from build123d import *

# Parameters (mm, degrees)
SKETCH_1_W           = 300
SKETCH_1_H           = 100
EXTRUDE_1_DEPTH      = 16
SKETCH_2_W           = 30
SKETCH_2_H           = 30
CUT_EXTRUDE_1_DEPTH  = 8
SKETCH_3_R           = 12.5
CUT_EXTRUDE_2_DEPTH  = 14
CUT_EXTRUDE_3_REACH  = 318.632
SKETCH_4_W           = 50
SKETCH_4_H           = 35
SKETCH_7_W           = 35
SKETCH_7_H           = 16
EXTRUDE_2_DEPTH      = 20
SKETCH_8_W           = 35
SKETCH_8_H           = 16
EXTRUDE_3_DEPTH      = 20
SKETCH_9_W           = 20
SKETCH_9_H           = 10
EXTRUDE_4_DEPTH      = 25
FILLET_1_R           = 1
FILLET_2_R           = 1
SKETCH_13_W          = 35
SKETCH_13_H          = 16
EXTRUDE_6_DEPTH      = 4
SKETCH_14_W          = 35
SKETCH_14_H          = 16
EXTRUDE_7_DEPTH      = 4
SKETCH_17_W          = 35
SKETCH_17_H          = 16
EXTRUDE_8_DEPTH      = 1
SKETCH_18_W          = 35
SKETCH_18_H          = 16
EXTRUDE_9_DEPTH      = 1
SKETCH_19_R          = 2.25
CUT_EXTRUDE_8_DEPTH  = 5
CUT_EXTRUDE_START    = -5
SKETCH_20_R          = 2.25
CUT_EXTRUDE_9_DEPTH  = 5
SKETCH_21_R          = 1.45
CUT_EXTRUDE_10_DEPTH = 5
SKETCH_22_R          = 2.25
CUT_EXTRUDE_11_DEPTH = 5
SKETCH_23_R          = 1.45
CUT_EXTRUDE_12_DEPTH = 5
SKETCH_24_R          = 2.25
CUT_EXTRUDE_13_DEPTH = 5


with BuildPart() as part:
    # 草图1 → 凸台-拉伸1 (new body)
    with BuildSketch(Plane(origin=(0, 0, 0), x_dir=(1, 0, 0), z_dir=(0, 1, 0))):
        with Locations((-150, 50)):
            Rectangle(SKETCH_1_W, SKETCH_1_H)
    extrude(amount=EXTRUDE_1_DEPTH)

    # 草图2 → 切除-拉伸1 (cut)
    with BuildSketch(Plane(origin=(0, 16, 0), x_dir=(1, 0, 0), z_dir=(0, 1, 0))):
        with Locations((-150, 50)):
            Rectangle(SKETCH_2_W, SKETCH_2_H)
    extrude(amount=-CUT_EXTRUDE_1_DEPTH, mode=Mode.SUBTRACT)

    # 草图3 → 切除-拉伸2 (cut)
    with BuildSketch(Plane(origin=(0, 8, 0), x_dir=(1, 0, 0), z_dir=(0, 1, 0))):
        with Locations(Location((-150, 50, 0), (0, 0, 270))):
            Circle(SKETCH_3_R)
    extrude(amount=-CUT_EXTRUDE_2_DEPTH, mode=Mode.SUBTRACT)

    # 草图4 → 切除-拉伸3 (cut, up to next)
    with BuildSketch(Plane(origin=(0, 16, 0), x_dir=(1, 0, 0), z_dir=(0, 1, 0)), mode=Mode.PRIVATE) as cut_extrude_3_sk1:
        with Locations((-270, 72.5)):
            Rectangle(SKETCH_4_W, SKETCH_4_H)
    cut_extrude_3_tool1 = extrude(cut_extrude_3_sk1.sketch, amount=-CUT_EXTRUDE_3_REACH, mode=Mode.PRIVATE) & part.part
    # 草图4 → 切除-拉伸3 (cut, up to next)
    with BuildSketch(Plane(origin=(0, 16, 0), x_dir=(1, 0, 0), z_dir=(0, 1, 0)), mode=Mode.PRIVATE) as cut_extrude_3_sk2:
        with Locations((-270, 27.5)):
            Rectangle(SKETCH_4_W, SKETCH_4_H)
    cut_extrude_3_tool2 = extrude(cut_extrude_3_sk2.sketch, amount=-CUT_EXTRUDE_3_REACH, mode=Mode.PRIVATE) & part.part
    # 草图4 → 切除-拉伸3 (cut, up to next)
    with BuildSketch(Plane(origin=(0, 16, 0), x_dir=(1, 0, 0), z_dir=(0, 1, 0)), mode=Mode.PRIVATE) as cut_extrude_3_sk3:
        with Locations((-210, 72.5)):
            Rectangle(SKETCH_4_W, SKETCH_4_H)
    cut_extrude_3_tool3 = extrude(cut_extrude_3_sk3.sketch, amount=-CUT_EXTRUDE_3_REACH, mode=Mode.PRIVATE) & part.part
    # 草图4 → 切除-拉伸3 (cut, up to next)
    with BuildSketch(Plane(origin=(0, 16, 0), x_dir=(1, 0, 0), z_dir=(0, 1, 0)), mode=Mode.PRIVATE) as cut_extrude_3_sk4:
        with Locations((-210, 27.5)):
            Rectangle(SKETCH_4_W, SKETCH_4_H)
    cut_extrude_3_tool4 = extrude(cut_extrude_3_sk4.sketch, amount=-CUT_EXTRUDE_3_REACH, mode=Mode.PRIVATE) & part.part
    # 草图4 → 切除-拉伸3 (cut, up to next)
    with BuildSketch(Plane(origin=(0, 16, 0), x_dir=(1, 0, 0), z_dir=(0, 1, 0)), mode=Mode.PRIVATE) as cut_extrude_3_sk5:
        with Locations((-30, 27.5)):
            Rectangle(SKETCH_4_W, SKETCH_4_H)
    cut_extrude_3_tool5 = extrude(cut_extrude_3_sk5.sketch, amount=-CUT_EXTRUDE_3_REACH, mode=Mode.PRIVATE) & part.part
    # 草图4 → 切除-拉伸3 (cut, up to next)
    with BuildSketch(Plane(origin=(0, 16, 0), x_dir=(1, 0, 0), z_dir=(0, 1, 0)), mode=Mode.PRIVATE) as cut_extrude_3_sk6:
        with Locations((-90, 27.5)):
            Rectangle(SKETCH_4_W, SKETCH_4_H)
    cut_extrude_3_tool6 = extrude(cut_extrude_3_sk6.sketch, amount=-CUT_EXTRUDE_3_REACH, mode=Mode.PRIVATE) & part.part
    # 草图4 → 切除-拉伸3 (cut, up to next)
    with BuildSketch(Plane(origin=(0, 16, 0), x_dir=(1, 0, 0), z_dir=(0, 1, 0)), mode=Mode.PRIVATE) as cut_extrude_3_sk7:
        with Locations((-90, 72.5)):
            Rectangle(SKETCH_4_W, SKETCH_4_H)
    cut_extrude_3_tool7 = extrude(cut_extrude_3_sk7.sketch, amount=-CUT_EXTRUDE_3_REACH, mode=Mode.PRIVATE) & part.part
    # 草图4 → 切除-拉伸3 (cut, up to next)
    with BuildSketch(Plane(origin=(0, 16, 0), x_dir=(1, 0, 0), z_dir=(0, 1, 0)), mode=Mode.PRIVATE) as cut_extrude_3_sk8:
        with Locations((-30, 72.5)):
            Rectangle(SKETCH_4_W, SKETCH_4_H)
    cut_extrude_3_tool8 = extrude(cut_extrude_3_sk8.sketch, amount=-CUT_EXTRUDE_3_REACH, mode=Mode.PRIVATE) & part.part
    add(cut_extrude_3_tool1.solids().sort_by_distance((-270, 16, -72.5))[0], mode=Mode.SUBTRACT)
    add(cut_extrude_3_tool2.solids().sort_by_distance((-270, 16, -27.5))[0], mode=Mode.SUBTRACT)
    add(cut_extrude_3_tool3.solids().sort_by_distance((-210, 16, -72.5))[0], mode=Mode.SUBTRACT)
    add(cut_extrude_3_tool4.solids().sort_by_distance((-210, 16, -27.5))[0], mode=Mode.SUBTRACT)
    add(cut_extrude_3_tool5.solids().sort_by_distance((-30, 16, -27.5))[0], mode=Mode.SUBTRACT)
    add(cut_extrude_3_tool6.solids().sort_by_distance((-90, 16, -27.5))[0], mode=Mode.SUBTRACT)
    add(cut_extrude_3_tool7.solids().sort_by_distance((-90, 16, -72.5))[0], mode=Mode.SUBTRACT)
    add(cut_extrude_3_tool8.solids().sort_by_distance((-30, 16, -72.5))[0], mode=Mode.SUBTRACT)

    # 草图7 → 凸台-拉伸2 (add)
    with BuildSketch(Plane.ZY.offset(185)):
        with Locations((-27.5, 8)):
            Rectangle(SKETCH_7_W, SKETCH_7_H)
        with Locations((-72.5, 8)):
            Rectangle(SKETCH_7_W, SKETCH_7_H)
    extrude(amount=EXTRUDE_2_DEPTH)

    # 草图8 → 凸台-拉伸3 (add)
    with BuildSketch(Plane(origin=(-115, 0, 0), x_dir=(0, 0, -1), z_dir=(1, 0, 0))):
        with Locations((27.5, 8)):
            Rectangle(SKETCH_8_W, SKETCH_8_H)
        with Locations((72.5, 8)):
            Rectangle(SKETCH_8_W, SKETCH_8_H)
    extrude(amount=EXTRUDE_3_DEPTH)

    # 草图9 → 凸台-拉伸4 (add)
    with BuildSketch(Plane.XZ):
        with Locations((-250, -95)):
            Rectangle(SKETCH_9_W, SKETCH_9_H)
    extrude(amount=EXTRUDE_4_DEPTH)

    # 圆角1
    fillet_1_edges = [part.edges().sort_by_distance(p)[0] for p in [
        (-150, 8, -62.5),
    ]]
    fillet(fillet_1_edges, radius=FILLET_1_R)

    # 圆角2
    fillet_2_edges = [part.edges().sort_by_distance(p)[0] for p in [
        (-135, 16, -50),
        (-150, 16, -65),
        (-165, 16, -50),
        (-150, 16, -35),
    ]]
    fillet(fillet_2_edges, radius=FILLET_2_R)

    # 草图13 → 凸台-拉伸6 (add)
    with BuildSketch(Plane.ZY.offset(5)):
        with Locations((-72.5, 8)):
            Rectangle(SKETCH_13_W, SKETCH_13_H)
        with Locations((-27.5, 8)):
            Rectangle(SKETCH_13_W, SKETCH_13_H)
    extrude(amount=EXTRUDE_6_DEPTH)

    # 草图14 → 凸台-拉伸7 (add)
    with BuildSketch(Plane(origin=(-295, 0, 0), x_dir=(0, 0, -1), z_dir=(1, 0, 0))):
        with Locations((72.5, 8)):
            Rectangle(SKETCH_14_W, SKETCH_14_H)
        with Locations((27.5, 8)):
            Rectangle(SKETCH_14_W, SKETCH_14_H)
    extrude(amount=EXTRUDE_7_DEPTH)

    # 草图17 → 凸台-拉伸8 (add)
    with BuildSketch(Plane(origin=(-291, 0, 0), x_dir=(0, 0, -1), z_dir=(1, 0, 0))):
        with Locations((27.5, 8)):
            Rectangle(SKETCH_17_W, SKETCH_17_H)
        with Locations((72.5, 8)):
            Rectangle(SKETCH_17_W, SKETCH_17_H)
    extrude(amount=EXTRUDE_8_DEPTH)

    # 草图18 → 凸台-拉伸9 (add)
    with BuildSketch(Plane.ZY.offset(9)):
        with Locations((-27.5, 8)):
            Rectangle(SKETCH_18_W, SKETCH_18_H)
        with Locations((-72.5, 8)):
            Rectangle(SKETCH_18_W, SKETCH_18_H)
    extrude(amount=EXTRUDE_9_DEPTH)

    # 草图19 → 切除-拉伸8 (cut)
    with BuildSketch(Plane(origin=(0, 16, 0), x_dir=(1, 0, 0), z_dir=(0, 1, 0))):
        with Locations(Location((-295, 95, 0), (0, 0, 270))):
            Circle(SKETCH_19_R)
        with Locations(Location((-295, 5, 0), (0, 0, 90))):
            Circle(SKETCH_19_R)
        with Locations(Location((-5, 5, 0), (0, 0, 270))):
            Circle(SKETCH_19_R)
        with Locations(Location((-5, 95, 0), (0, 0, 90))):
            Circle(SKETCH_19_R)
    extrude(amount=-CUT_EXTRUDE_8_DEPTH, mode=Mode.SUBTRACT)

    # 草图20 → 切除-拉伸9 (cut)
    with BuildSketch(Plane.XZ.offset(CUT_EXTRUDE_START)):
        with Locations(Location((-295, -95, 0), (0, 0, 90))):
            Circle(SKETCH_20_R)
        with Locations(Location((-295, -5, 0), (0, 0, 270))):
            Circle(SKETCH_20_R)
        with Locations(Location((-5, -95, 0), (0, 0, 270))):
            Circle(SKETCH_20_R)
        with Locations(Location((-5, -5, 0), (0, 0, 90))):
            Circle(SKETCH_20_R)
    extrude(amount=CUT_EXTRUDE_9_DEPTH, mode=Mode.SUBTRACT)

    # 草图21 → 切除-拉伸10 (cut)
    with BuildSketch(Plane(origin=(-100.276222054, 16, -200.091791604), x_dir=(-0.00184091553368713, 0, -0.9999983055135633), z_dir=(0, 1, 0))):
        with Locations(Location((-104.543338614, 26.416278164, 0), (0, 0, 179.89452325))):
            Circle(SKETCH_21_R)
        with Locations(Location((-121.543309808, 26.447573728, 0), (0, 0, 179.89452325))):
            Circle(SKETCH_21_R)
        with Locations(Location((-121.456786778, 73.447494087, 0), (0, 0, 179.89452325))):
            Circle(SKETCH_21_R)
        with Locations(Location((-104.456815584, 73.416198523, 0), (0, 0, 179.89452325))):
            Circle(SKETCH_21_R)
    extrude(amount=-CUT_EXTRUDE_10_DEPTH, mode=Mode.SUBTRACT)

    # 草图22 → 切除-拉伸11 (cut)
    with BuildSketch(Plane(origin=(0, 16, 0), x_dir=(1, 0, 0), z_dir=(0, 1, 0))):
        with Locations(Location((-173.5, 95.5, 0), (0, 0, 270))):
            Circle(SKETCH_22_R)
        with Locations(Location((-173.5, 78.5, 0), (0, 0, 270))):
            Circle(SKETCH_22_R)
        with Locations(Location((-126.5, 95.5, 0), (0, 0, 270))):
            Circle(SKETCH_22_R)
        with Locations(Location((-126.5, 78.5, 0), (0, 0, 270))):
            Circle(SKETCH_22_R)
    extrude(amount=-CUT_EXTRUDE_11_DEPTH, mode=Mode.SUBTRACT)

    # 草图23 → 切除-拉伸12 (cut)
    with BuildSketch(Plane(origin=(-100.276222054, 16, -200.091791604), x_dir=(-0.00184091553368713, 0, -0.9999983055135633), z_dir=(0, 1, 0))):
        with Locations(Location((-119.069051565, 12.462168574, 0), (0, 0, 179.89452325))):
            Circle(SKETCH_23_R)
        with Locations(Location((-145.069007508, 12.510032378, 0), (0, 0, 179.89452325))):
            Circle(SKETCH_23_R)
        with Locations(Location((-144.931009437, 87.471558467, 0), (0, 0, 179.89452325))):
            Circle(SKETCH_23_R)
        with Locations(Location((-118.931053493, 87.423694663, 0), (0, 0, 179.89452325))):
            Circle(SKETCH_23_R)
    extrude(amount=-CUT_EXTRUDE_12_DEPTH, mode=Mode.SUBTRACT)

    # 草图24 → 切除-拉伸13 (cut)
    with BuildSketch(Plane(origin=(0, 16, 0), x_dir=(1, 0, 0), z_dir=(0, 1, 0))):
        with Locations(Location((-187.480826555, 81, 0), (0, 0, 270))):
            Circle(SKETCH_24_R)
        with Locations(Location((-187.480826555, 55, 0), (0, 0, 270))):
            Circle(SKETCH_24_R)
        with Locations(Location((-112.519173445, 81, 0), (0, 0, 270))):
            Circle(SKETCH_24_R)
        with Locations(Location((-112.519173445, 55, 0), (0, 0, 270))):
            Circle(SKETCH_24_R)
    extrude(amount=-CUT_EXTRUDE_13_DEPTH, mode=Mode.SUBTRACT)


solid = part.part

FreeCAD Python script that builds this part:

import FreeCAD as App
import Part
import Sketcher

V = App.Vector


def edges_at(feature, points):
    """Names of the edges that pass closest to the given points."""
    edges = feature.Shape.Edges
    near = lambda p: min(range(len(edges)), key=lambda i: edges[i].distToShape(Part.Vertex(*p))[0])
    return sorted({f"Edge{near(p) + 1}" for p in points})


def add_polygon(sketch, points):
    """Adds a closed chain of lines whose ends are joined by coincident constraints."""
    first, n = sketch.GeometryCount, len(points)
    for a, b in zip(points, points[1:] + points[:1]):
        sketch.addGeometry(Part.LineSegment(App.Vector(*a, 0), App.Vector(*b, 0)), False)
    for i in range(n):
        sketch.addConstraint(Sketcher.Constraint("Coincident", first + i, 2, first + (i + 1) % n, 1))

doc = App.newDocument("Part")
params = doc.addObject("Spreadsheet::Sheet", "Params")
for row, (alias, value) in enumerate([
    ("sketch1_width", "300 mm"),
    ("sketch1_height", "100 mm"),
    ("pad1_length", "16 mm"),
    ("sketch2_width", "30 mm"),
    ("pocket1_length", "8 mm"),
    ("sketch3_diameter", "25 mm"),
    ("pocket2_length", "14 mm"),
    ("sketch4_width", "50 mm"),
    ("sketch4_height", "35 mm"),
    ("sketch5_width", "50 mm"),
    ("sketch5_height", "35 mm"),
    ("sketch6_width", "50 mm"),
    ("sketch6_height", "35 mm"),
    ("sketch7_width", "50 mm"),
    ("sketch7_height", "35 mm"),
    ("sketch8_width", "50 mm"),
    ("sketch8_height", "35 mm"),
    ("sketch9_width", "50 mm"),
    ("sketch9_height", "35 mm"),
    ("sketch10_width", "50 mm"),
    ("sketch10_height", "35 mm"),
    ("sketch11_width", "50 mm"),
    ("sketch11_height", "35 mm"),
    ("sketch12_width", "16 mm"),
    ("sketch12_height", "35 mm"),
    ("pad2_length", "20 mm"),
    ("sketch13_width", "16 mm"),
    ("sketch13_height", "35 mm"),
    ("pad3_length", "20 mm"),
    ("sketch14_width", "20 mm"),
    ("sketch14_height", "10 mm"),
    ("pad4_length", "25 mm"),
    ("fillet_radius", "1 mm"),
    ("fillet2_radius", "1 mm"),
    ("sketch15_width", "16 mm"),
    ("sketch15_height", "35 mm"),
    ("pad5_length", "4 mm"),
    ("sketch16_width", "16 mm"),
    ("sketch16_height", "35 mm"),
    ("pad6_length", "4 mm"),
    ("sketch17_width", "16 mm"),
    ("sketch17_height", "35 mm"),
    ("pad7_length", "1 mm"),
    ("sketch18_width", "16 mm"),
    ("sketch18_height", "35 mm"),
    ("pad8_length", "1 mm"),
    ("sketch19_diameter", "4.5 mm"),
    ("pocket11_length", "5 mm"),
    ("sketch20_diameter", "4.5 mm"),
    ("pocket12_length", "5 mm"),
    ("sketch21_diameter", "2.9 mm"),
    ("pocket13_length", "5 mm"),
    ("sketch22_diameter", "4.5 mm"),
    ("pocket14_length", "5 mm"),
    ("sketch23_diameter", "2.9 mm"),
    ("pocket15_length", "5 mm"),
    ("sketch24_diameter", "4.5 mm"),
    ("pocket16_length", "5 mm"),
], start=1):
    params.set(f"A{row}", alias)
    params.set(f"B{row}", "=" + value)
    params.setAlias(f"B{row}", alias)

body = doc.addObject("PartDesign::Body", "Body")

# Sketch on XZ plane
sketch1 = doc.addObject("Sketcher::SketchObject", "Sketch")
body.addObject(sketch1)
sketch1.AttachmentSupport = (doc.XZ_Plane, [""])
sketch1.MapMode = "FlatFace"
add_polygon(sketch1, [(-300, -100), (-300, 0), (0, 0), (0, -100)])  # lines 0-3
sketch1.addConstraint([
    Sketcher.Constraint("Vertical", 0),
    Sketcher.Constraint("Horizontal", 1),
    Sketcher.Constraint("Vertical", 2),
    Sketcher.Constraint("Horizontal", 3),
    Sketcher.Constraint("Coincident", 1, 2, -1, 1),
    Sketcher.Constraint("DistanceX", 1, 1, 1, 2, 300.0),
    Sketcher.Constraint("DistanceY", 0, 1, 0, 2, 100.0),
])
sketch1.setExpression("Constraints[9]", "Params.sketch1_width")
sketch1.setExpression("Constraints[10]", "Params.sketch1_height")
pad1 = doc.addObject("PartDesign::Pad", "Pad")
body.addObject(pad1)
pad1.Profile = sketch1
pad1.setExpression("Length", "Params.pad1_length")
pad1.Reversed = True

# Sketch on XZ plane
sketch2 = doc.addObject("Sketcher::SketchObject", "Sketch001")
body.addObject(sketch2)
sketch2.AttachmentSupport = (doc.XZ_Plane, [""])
sketch2.MapMode = "FlatFace"
sketch2.AttachmentOffset = App.Placement(V(0, 0, -16), App.Rotation())
add_polygon(sketch2, [(-165, -65), (-165, -35), (-135, -35), (-135, -65)])  # lines 0-3
sketch2.addConstraint([
    Sketcher.Constraint("Vertical", 0),
    Sketcher.Constraint("Horizontal", 1),
    Sketcher.Constraint("Vertical", 2),
    Sketcher.Constraint("Horizontal", 3),
    Sketcher.Constraint("Equal", 3, 0),
    Sketcher.Constraint("DistanceX", 1, 1, 1, 2, 30.0),
    Sketcher.Constraint("DistanceX", 0, 2, -1, 1, 165.0),
    Sketcher.Constraint("DistanceY", 0, 2, -1, 1, 35.0),
])
sketch2.setExpression("Constraints[9]", "Params.sketch2_width")
pocket1 = doc.addObject("PartDesign::Pocket", "Pocket")
body.addObject(pocket1)
pocket1.Profile = sketch2
pocket1.setExpression("Length", "Params.pocket1_length")
pocket1.Reversed = True

# Sketch on XZ plane
sketch3 = doc.addObject("Sketcher::SketchObject", "Sketch002")
body.addObject(sketch3)
sketch3.AttachmentSupport = (doc.XZ_Plane, [""])
sketch3.MapMode = "FlatFace"
sketch3.AttachmentOffset = App.Placement(V(0, 0, -8), App.Rotation())
sketch3.addGeometry(Part.Circle(V(-150, -50, 0), V(0, 0, 1), 12.5), False)
sketch3.addConstraint([
    Sketcher.Constraint("Diameter", 0, 25.0),
    Sketcher.Constraint("DistanceX", 0, 3, -1, 1, 150.0),
    Sketcher.Constraint("DistanceY", 0, 3, -1, 1, 50.0),
])
sketch3.setExpression("Constraints[0]", "Params.sketch3_diameter")
pocket2 = doc.addObject("PartDesign::Pocket", "Pocket001")
body.addObject(pocket2)
pocket2.Profile = sketch3
pocket2.setExpression("Length", "Params.pocket2_length")
pocket2.Reversed = True

# Sketch on XZ plane
sketch4 = doc.addObject("Sketcher::SketchObject", "Sketch003")
body.addObject(sketch4)
sketch4.AttachmentSupport = (doc.XZ_Plane, [""])
sketch4.MapMode = "FlatFace"
sketch4.AttachmentOffset = App.Placement(V(0, 0, -16), App.Rotation())
add_polygon(sketch4, [(-295, -90), (-295, -55), (-245, -55), (-245, -90)])  # lines 0-3
sketch4.addConstraint([
    Sketcher.Constraint("Vertical", 0),
    Sketcher.Constraint("Horizontal", 1),
    Sketcher.Constraint("Vertical", 2),
    Sketcher.Constraint("Horizontal", 3),
    Sketcher.Constraint("DistanceX", 1, 1, 1, 2, 50.0),
    Sketcher.Constraint("DistanceY", 0, 1, 0, 2, 35.0),
    Sketcher.Constraint("DistanceX", 0, 2, -1, 1, 295.0),
    Sketcher.Constraint("DistanceY", 0, 2, -1, 1, 55.0),
])
sketch4.setExpression("Constraints[8]", "Params.sketch4_width")
sketch4.setExpression("Constraints[9]", "Params.sketch4_height")
pocket3 = doc.addObject("PartDesign::Pocket", "Pocket002")
body.addObject(pocket3)
pocket3.Profile = sketch4
pocket3.Type = "UpToFirst"
pocket3.Reversed = True

# Sketch on XZ plane
sketch5 = doc.addObject("Sketcher::SketchObject", "Sketch004")
body.addObject(sketch5)
sketch5.AttachmentSupport = (doc.XZ_Plane, [""])
sketch5.MapMode = "FlatFace"
sketch5.AttachmentOffset = App.Placement(V(0, 0, -16), App.Rotation())
add_polygon(sketch5, [(-295, -45), (-295, -10), (-245, -10), (-245, -45)])  # lines 0-3
sketch5.addConstraint([
    Sketcher.Constraint("Vertical", 0),
    Sketcher.Constraint("Horizontal", 1),
    Sketcher.Constraint("Vertical", 2),
    Sketcher.Constraint("Horizontal", 3),
    Sketcher.Constraint("DistanceX", 1, 1, 1, 2, 50.0),
    Sketcher.Constraint("DistanceY", 0, 1, 0, 2, 35.0),
    Sketcher.Constraint("DistanceX", 0, 2, -1, 1, 295.0),
    Sketcher.Constraint("DistanceY", 0, 2, -1, 1, 10.0),
])
sketch5.setExpression("Constraints[8]", "Params.sketch5_width")
sketch5.setExpression("Constraints[9]", "Params.sketch5_height")
pocket4 = doc.addObject("PartDesign::Pocket", "Pocket003")
body.addObject(pocket4)
pocket4.Profile = sketch5
pocket4.Type = "UpToFirst"
pocket4.Reversed = True

# Sketch on XZ plane
sketch6 = doc.addObject("Sketcher::SketchObject", "Sketch005")
body.addObject(sketch6)
sketch6.AttachmentSupport = (doc.XZ_Plane, [""])
sketch6.MapMode = "FlatFace"
sketch6.AttachmentOffset = App.Placement(V(0, 0, -16), App.Rotation())
add_polygon(sketch6, [(-235, -90), (-235, -55), (-185, -55), (-185, -90)])  # lines 0-3
sketch6.addConstraint([
    Sketcher.Constraint("Vertical", 0),
    Sketcher.Constraint("Horizontal", 1),
    Sketcher.Constraint("Vertical", 2),
    Sketcher.Constraint("Horizontal", 3),
    Sketcher.Constraint("DistanceX", 1, 1, 1, 2, 50.0),
    Sketcher.Constraint("DistanceY", 0, 1, 0, 2, 35.0),
    Sketcher.Constraint("DistanceX", 0, 2, -1, 1, 235.0),
    Sketcher.Constraint("DistanceY", 0, 2, -1, 1, 55.0),
])
sketch6.setExpression("Constraints[8]", "Params.sketch6_width")
sketch6.setExpression("Constraints[9]", "Params.sketch6_height")
pocket5 = doc.addObject("PartDesign::Pocket", "Pocket004")
body.addObject(pocket5)
pocket5.Profile = sketch6
pocket5.Type = "UpToFirst"
pocket5.Reversed = True

# Sketch on XZ plane
sketch7 = doc.addObject("Sketcher::SketchObject", "Sketch006")
body.addObject(sketch7)
sketch7.AttachmentSupport = (doc.XZ_Plane, [""])
sketch7.MapMode = "FlatFace"
sketch7.AttachmentOffset = App.Placement(V(0, 0, -16), App.Rotation())
add_polygon(sketch7, [(-235, -45), (-235, -10), (-185, -10), (-185, -45)])  # lines 0-3
sketch7.addConstraint([
    Sketcher.Constraint("Vertical", 0),
    Sketcher.Constraint("Horizontal", 1),
    Sketcher.Constraint("Vertical", 2),
    Sketcher.Constraint("Horizontal", 3),
    Sketcher.Constraint("DistanceX", 1, 1, 1, 2, 50.0),
    Sketcher.Constraint("DistanceY", 0, 1, 0, 2, 35.0),
    Sketcher.Constraint("DistanceX", 0, 2, -1, 1, 235.0),
    Sketcher.Constraint("DistanceY", 0, 2, -1, 1, 10.0),
])
sketch7.setExpression("Constraints[8]", "Params.sketch7_width")
sketch7.setExpression("Constraints[9]", "Params.sketch7_height")
pocket6 = doc.addObject("PartDesign::Pocket", "Pocket005")
body.addObject(pocket6)
pocket6.Profile = sketch7
pocket6.Type = "UpToFirst"
pocket6.Reversed = True

# Sketch on XZ plane
sketch8 = doc.addObject("Sketcher::SketchObject", "Sketch007")
body.addObject(sketch8)
sketch8.AttachmentSupport = (doc.XZ_Plane, [""])
sketch8.MapMode = "FlatFace"
sketch8.AttachmentOffset = App.Placement(V(0, 0, -16), App.Rotation())
add_polygon(sketch8, [(-55, -45), (-55, -10), (-5, -10), (-5, -45)])  # lines 0-3
sketch8.addConstraint([
    Sketcher.Constraint("Vertical", 0),
    Sketcher.Constraint("Horizontal", 1),
    Sketcher.Constraint("Vertical", 2),
    Sketcher.Constraint("Horizontal", 3),
    Sketcher.Constraint("DistanceX", 1, 1, 1, 2, 50.0),
    Sketcher.Constraint("DistanceY", 0, 1, 0, 2, 35.0),
    Sketcher.Constraint("DistanceX", 0, 2, -1, 1, 55.0),
    Sketcher.Constraint("DistanceY", 0, 2, -1, 1, 10.0),
])
sketch8.setExpression("Constraints[8]", "Params.sketch8_width")
sketch8.setExpression("Constraints[9]", "Params.sketch8_height")
pocket7 = doc.addObject("PartDesign::Pocket", "Pocket006")
body.addObject(pocket7)
pocket7.Profile = sketch8
pocket7.Type = "UpToFirst"
pocket7.Reversed = True

# Sketch on XZ plane
sketch9 = doc.addObject("Sketcher::SketchObject", "Sketch008")
body.addObject(sketch9)
sketch9.AttachmentSupport = (doc.XZ_Plane, [""])
sketch9.MapMode = "FlatFace"
sketch9.AttachmentOffset = App.Placement(V(0, 0, -16), App.Rotation())
add_polygon(sketch9, [(-115, -45), (-115, -10), (-65, -10), (-65, -45)])  # lines 0-3
sketch9.addConstraint([
    Sketcher.Constraint("Vertical", 0),
    Sketcher.Constraint("Horizontal", 1),
    Sketcher.Constraint("Vertical", 2),
    Sketcher.Constraint("Horizontal", 3),
    Sketcher.Constraint("DistanceX", 1, 1, 1, 2, 50.0),
    Sketcher.Constraint("DistanceY", 0, 1, 0, 2, 35.0),
    Sketcher.Constraint("DistanceX", 0, 2, -1, 1, 115.0),
    Sketcher.Constraint("DistanceY", 0, 2, -1, 1, 10.0),
])
sketch9.setExpression("Constraints[8]", "Params.sketch9_width")
sketch9.setExpression("Constraints[9]", "Params.sketch9_height")
pocket8 = doc.addObject("PartDesign::Pocket", "Pocket007")
body.addObject(pocket8)
pocket8.Profile = sketch9
pocket8.Type = "UpToFirst"
pocket8.Reversed = True

# Sketch on XZ plane
sketch10 = doc.addObject("Sketcher::SketchObject", "Sketch009")
body.addObject(sketch10)
sketch10.AttachmentSupport = (doc.XZ_Plane, [""])
sketch10.MapMode = "FlatFace"
sketch10.AttachmentOffset = App.Placement(V(0, 0, -16), App.Rotation())
add_polygon(sketch10, [(-115, -90), (-115, -55), (-65, -55), (-65, -90)])  # lines 0-3
sketch10.addConstraint([
    Sketcher.Constraint("Vertical", 0),
    Sketcher.Constraint("Horizontal", 1),
    Sketcher.Constraint("Vertical", 2),
    Sketcher.Constraint("Horizontal", 3),
    Sketcher.Constraint("DistanceX", 1, 1, 1, 2, 50.0),
    Sketcher.Constraint("DistanceY", 0, 1, 0, 2, 35.0),
    Sketcher.Constraint("DistanceX", 0, 2, -1, 1, 115.0),
    Sketcher.Constraint("DistanceY", 0, 2, -1, 1, 55.0),
])
sketch10.setExpression("Constraints[8]", "Params.sketch10_width")
sketch10.setExpression("Constraints[9]", "Params.sketch10_height")
pocket9 = doc.addObject("PartDesign::Pocket", "Pocket008")
body.addObject(pocket9)
pocket9.Profile = sketch10
pocket9.Type = "UpToFirst"
pocket9.Reversed = True

# Sketch on XZ plane
sketch11 = doc.addObject("Sketcher::SketchObject", "Sketch010")
body.addObject(sketch11)
sketch11.AttachmentSupport = (doc.XZ_Plane, [""])
sketch11.MapMode = "FlatFace"
sketch11.AttachmentOffset = App.Placement(V(0, 0, -16), App.Rotation())
add_polygon(sketch11, [(-55, -90), (-55, -55), (-5, -55), (-5, -90)])  # lines 0-3
sketch11.addConstraint([
    Sketcher.Constraint("Vertical", 0),
    Sketcher.Constraint("Horizontal", 1),
    Sketcher.Constraint("Vertical", 2),
    Sketcher.Constraint("Horizontal", 3),
    Sketcher.Constraint("DistanceX", 1, 1, 1, 2, 50.0),
    Sketcher.Constraint("DistanceY", 0, 1, 0, 2, 35.0),
    Sketcher.Constraint("DistanceX", 0, 2, -1, 1, 55.0),
    Sketcher.Constraint("DistanceY", 0, 2, -1, 1, 55.0),
])
sketch11.setExpression("Constraints[8]", "Params.sketch11_width")
sketch11.setExpression("Constraints[9]", "Params.sketch11_height")
pocket10 = doc.addObject("PartDesign::Pocket", "Pocket009")
body.addObject(pocket10)
pocket10.Profile = sketch11
pocket10.Type = "UpToFirst"
pocket10.Reversed = True

# Sketch on YZ plane
sketch12 = doc.addObject("Sketcher::SketchObject", "Sketch011")
body.addObject(sketch12)
sketch12.AttachmentSupport = (doc.YZ_Plane, [""])
sketch12.MapMode = "FlatFace"
sketch12.AttachmentOffset = App.Placement(V(0, 0, -185), App.Rotation())
add_polygon(sketch12, [(16, -45), (0, -45), (0, -10), (16, -10)])  # lines 0-3
add_polygon(sketch12, [(16, -90), (0, -90), (0, -55), (16, -55)])  # lines 4-7
sketch12.addConstraint([
    Sketcher.Constraint("Horizontal", 0),
    Sketcher.Constraint("Vertical", 1),
    Sketcher.Constraint("Horizontal", 2),
    Sketcher.Constraint("Vertical", 3),
    Sketcher.Constraint("Horizontal", 4),
    Sketcher.Constraint("Vertical", 5),
    Sketcher.Constraint("Horizontal", 6),
    Sketcher.Constraint("Vertical", 7),
    Sketcher.Constraint("PointOnObject", 0, 2, -2),
    Sketcher.Constraint("PointOnObject", 4, 2, -2),
    Sketcher.Constraint("Vertical", 3, 2, 6, 2),
    Sketcher.Constraint("Equal", 3, 5),
    Sketcher.Constraint("DistanceX", 0, 2, 0, 1, 16.0),
    Sketcher.Constraint("DistanceY", 1, 1, 1, 2, 35.0),
    Sketcher.Constraint("DistanceY", 0, 2, -1, 1, 45.0),
    Sketcher.Constraint("DistanceY", 4, 2, -1, 1, 90.0),
])
sketch12.setExpression("Constraints[20]", "Params.sketch12_width")
sketch12.setExpression("Constraints[21]", "Params.sketch12_height")
pad2 = doc.addObject("PartDesign::Pad", "Pad001")
body.addObject(pad2)
pad2.Profile = sketch12
pad2.setExpression("Length", "Params.pad2_length")
pad2.Reversed = True

# Sketch on YZ plane
sketch13 = doc.addObject("Sketcher::SketchObject", "Sketch012")
body.addObject(sketch13)
sketch13.AttachmentSupport = (doc.YZ_Plane, [""])
sketch13.MapMode = "FlatFace"
sketch13.AttachmentOffset = App.Placement(V(0, 0, -115), App.Rotation())
add_polygon(sketch13, [(16, -10), (0, -10), (0, -45), (16, -45)])  # lines 0-3
add_polygon(sketch13, [(16, -55), (0, -55), (0, -90), (16, -90)])  # lines 4-7
sketch13.addConstraint([
    Sketcher.Constraint("Horizontal", 0),
    Sketcher.Constraint("Vertical", 1),
    Sketcher.Constraint("Horizontal", 2),
    Sketcher.Constraint("Vertical", 3),
    Sketcher.Constraint("Horizontal", 4),
    Sketcher.Constraint("Vertical", 5),
    Sketcher.Constraint("Horizontal", 6),
    Sketcher.Constraint("Vertical", 7),
    Sketcher.Constraint("PointOnObject", 0, 2, -2),
    Sketcher.Constraint("PointOnObject", 4, 2, -2),
    Sketcher.Constraint("Vertical", 3, 2, 6, 2),
    Sketcher.Constraint("Equal", 3, 5),
    Sketcher.Constraint("DistanceX", 0, 2, 0, 1, 16.0),
    Sketcher.Constraint("DistanceY", 1, 2, 1, 1, 35.0),
    Sketcher.Constraint("DistanceY", 0, 2, -1, 1, 10.0),
    Sketcher.Constraint("DistanceY", 4, 2, -1, 1, 55.0),
])
sketch13.setExpression("Constraints[20]", "Params.sketch13_width")
sketch13.setExpression("Constraints[21]", "Params.sketch13_height")
pad3 = doc.addObject("PartDesign::Pad", "Pad002")
body.addObject(pad3)
pad3.Profile = sketch13
pad3.setExpression("Length", "Params.pad3_length")

# Sketch on XZ plane
sketch14 = doc.addObject("Sketcher::SketchObject", "Sketch013")
body.addObject(sketch14)
sketch14.AttachmentSupport = (doc.XZ_Plane, [""])
sketch14.MapMode = "FlatFace"
add_polygon(sketch14, [(-260, -90), (-260, -100), (-240, -100), (-240, -90)])  # lines 0-3
sketch14.addConstraint([
    Sketcher.Constraint("Vertical", 0),
    Sketcher.Constraint("Horizontal", 1),
    Sketcher.Constraint("Vertical", 2),
    Sketcher.Constraint("Horizontal", 3),
    Sketcher.Constraint("DistanceX", 1, 1, 1, 2, 20.0),
    Sketcher.Constraint("DistanceY", 0, 2, 0, 1, 10.0),
    Sketcher.Constraint("DistanceX", 0, 2, -1, 1, 260.0),
    Sketcher.Constraint("DistanceY", 0, 2, -1, 1, 100.0),
])
sketch14.setExpression("Constraints[8]", "Params.sketch14_width")
sketch14.setExpression("Constraints[9]", "Params.sketch14_height")
pad4 = doc.addObject("PartDesign::Pad", "Pad003")
body.addObject(pad4)
pad4.Profile = sketch14
pad4.setExpression("Length", "Params.pad4_length")
doc.recompute()

fillet = doc.addObject("PartDesign::Fillet", "Fillet")
body.addObject(fillet)
fillet.Base = (pad4, edges_at(pad4, [(-150, 8, -62.5)]))
fillet.setExpression("Radius", "Params.fillet_radius")
doc.recompute()

fillet2 = doc.addObject("PartDesign::Fillet", "Fillet001")
body.addObject(fillet2)
fillet2.Base = (fillet, edges_at(fillet, [
    (-135, 16, -50),
    (-150, 16, -65),
    (-165, 16, -50),
    (-150, 16, -35),
]))
fillet2.setExpression("Radius", "Params.fillet2_radius")

# Sketch on YZ plane
sketch15 = doc.addObject("Sketcher::SketchObject", "Sketch014")
body.addObject(sketch15)
sketch15.AttachmentSupport = (doc.YZ_Plane, [""])
sketch15.MapMode = "FlatFace"
sketch15.AttachmentOffset = App.Placement(V(0, 0, -5), App.Rotation())
add_polygon(sketch15, [(16, -90), (0, -90), (0, -55), (16, -55)])  # lines 0-3
add_polygon(sketch15, [(16, -45), (0, -45), (0, -10), (16, -10)])  # lines 4-7
sketch15.addConstraint([
    Sketcher.Constraint("Horizontal", 0),
    Sketcher.Constraint("Vertical", 1),
    Sketcher.Constraint("Horizontal", 2),
    Sketcher.Constraint("Vertical", 3),
    Sketcher.Constraint("Horizontal", 4),
    Sketcher.Constraint("Vertical", 5),
    Sketcher.Constraint("Horizontal", 6),
    Sketcher.Constraint("Vertical", 7),
    Sketcher.Constraint("PointOnObject", 0, 2, -2),
    Sketcher.Constraint("PointOnObject", 4, 2, -2),
    Sketcher.Constraint("Vertical", 3, 2, 6, 2),
    Sketcher.Constraint("Equal", 3, 5),
    Sketcher.Constraint("DistanceX", 0, 2, 0, 1, 16.0),
    Sketcher.Constraint("DistanceY", 1, 1, 1, 2, 35.0),
    Sketcher.Constraint("DistanceY", 0, 2, -1, 1, 90.0),
    Sketcher.Constraint("DistanceY", 4, 2, -1, 1, 45.0),
])
sketch15.setExpression("Constraints[20]", "Params.sketch15_width")
sketch15.setExpression("Constraints[21]", "Params.sketch15_height")
pad5 = doc.addObject("PartDesign::Pad", "Pad004")
body.addObject(pad5)
pad5.Profile = sketch15
pad5.setExpression("Length", "Params.pad5_length")
pad5.Reversed = True

# Sketch on YZ plane
sketch16 = doc.addObject("Sketcher::SketchObject", "Sketch015")
body.addObject(sketch16)
sketch16.AttachmentSupport = (doc.YZ_Plane, [""])
sketch16.MapMode = "FlatFace"
sketch16.AttachmentOffset = App.Placement(V(0, 0, -295), App.Rotation())
add_polygon(sketch16, [(16, -55), (0, -55), (0, -90), (16, -90)])  # lines 0-3
add_polygon(sketch16, [(16, -10), (0, -10), (0, -45), (16, -45)])  # lines 4-7
sketch16.addConstraint([
    Sketcher.Constraint("Horizontal", 0),
    Sketcher.Constraint("Vertical", 1),
    Sketcher.Constraint("Horizontal", 2),
    Sketcher.Constraint("Vertical", 3),
    Sketcher.Constraint("Horizontal", 4),
    Sketcher.Constraint("Vertical", 5),
    Sketcher.Constraint("Horizontal", 6),
    Sketcher.Constraint("Vertical", 7),
    Sketcher.Constraint("PointOnObject", 0, 2, -2),
    Sketcher.Constraint("PointOnObject", 4, 2, -2),
    Sketcher.Constraint("Vertical", 3, 2, 6, 2),
    Sketcher.Constraint("Equal", 3, 5),
    Sketcher.Constraint("DistanceX", 0, 2, 0, 1, 16.0),
    Sketcher.Constraint("DistanceY", 1, 2, 1, 1, 35.0),
    Sketcher.Constraint("DistanceY", 0, 2, -1, 1, 55.0),
    Sketcher.Constraint("DistanceY", 4, 2, -1, 1, 10.0),
])
sketch16.setExpression("Constraints[20]", "Params.sketch16_width")
sketch16.setExpression("Constraints[21]", "Params.sketch16_height")
pad6 = doc.addObject("PartDesign::Pad", "Pad005")
body.addObject(pad6)
pad6.Profile = sketch16
pad6.setExpression("Length", "Params.pad6_length")

# Sketch on YZ plane
sketch17 = doc.addObject("Sketcher::SketchObject", "Sketch016")
body.addObject(sketch17)
sketch17.AttachmentSupport = (doc.YZ_Plane, [""])
sketch17.MapMode = "FlatFace"
sketch17.AttachmentOffset = App.Placement(V(0, 0, -291), App.Rotation())
add_polygon(sketch17, [(16, -10), (0, -10), (0, -45), (16, -45)])  # lines 0-3
add_polygon(sketch17, [(16, -55), (0, -55), (0, -90), (16, -90)])  # lines 4-7
sketch17.addConstraint([
    Sketcher.Constraint("Horizontal", 0),
    Sketcher.Constraint("Vertical", 1),
    Sketcher.Constraint("Horizontal", 2),
    Sketcher.Constraint("Vertical", 3),
    Sketcher.Constraint("Horizontal", 4),
    Sketcher.Constraint("Vertical", 5),
    Sketcher.Constraint("Horizontal", 6),
    Sketcher.Constraint("Vertical", 7),
    Sketcher.Constraint("PointOnObject", 0, 2, -2),
    Sketcher.Constraint("PointOnObject", 4, 2, -2),
    Sketcher.Constraint("Vertical", 3, 2, 6, 2),
    Sketcher.Constraint("Equal", 3, 5),
    Sketcher.Constraint("DistanceX", 0, 2, 0, 1, 16.0),
    Sketcher.Constraint("DistanceY", 1, 2, 1, 1, 35.0),
    Sketcher.Constraint("DistanceY", 0, 2, -1, 1, 10.0),
    Sketcher.Constraint("DistanceY", 4, 2, -1, 1, 55.0),
])
sketch17.setExpression("Constraints[20]", "Params.sketch17_width")
sketch17.setExpression("Constraints[21]", "Params.sketch17_height")
pad7 = doc.addObject("PartDesign::Pad", "Pad006")
body.addObject(pad7)
pad7.Profile = sketch17
pad7.setExpression("Length", "Params.pad7_length")

# Sketch on YZ plane
sketch18 = doc.addObject("Sketcher::SketchObject", "Sketch017")
body.addObject(sketch18)
sketch18.AttachmentSupport = (doc.YZ_Plane, [""])
sketch18.MapMode = "FlatFace"
sketch18.AttachmentOffset = App.Placement(V(0, 0, -9), App.Rotation())
add_polygon(sketch18, [(16, -45), (0, -45), (0, -10), (16, -10)])  # lines 0-3
add_polygon(sketch18, [(16, -90), (0, -90), (0, -55), (16, -55)])  # lines 4-7
sketch18.addConstraint([
    Sketcher.Constraint("Horizontal", 0),
    Sketcher.Constraint("Vertical", 1),
    Sketcher.Constraint("Horizontal", 2),
    Sketcher.Constraint("Vertical", 3),
    Sketcher.Constraint("Horizontal", 4),
    Sketcher.Constraint("Vertical", 5),
    Sketcher.Constraint("Horizontal", 6),
    Sketcher.Constraint("Vertical", 7),
    Sketcher.Constraint("PointOnObject", 0, 2, -2),
    Sketcher.Constraint("PointOnObject", 4, 2, -2),
    Sketcher.Constraint("Vertical", 3, 2, 6, 2),
    Sketcher.Constraint("Equal", 3, 5),
    Sketcher.Constraint("DistanceX", 0, 2, 0, 1, 16.0),
    Sketcher.Constraint("DistanceY", 1, 1, 1, 2, 35.0),
    Sketcher.Constraint("DistanceY", 0, 2, -1, 1, 45.0),
    Sketcher.Constraint("DistanceY", 4, 2, -1, 1, 90.0),
])
sketch18.setExpression("Constraints[20]", "Params.sketch18_width")
sketch18.setExpression("Constraints[21]", "Params.sketch18_height")
pad8 = doc.addObject("PartDesign::Pad", "Pad007")
body.addObject(pad8)
pad8.Profile = sketch18
pad8.setExpression("Length", "Params.pad8_length")
pad8.Reversed = True

# Sketch on XZ plane
sketch19 = doc.addObject("Sketcher::SketchObject", "Sketch018")
body.addObject(sketch19)
sketch19.AttachmentSupport = (doc.XZ_Plane, [""])
sketch19.MapMode = "FlatFace"
sketch19.AttachmentOffset = App.Placement(V(0, 0, -16), App.Rotation())
sketch19.addGeometry([
    Part.Circle(V(-295, -95, 0), V(0, 0, 1), 2.25),
    Part.Circle(V(-295, -5, 0), V(0, 0, 1), 2.25),
    Part.Circle(V(-5, -5, 0), V(0, 0, 1), 2.25),
    Part.Circle(V(-5, -95, 0), V(0, 0, 1), 2.25),
], False)
sketch19.addConstraint([
    Sketcher.Constraint("Equal", 0, 1),
    Sketcher.Constraint("Equal", 1, 2),
    Sketcher.Constraint("Equal", 2, 3),
    Sketcher.Constraint("Horizontal", 1, 3, 2, 3),
    Sketcher.Constraint("Horizontal", 0, 3, 3, 3),
    Sketcher.Constraint("Vertical", 0, 3, 1, 3),
    Sketcher.Constraint("Vertical", 2, 3, 3, 3),
    Sketcher.Constraint("Diameter", 0, 4.5),
    Sketcher.Constraint("DistanceX", 0, 3, -1, 1, 295.0),
    Sketcher.Constraint("DistanceY", 0, 3, -1, 1, 95.0),
    Sketcher.Constraint("DistanceY", 1, 3, -1, 1, 5.0),
    Sketcher.Constraint("DistanceX", 2, 3, -1, 1, 5.0),
])
sketch19.setExpression("Constraints[7]", "Params.sketch19_diameter")
pocket11 = doc.addObject("PartDesign::Pocket", "Pocket010")
body.addObject(pocket11)
pocket11.Profile = sketch19
pocket11.setExpression("Length", "Params.pocket11_length")
pocket11.Reversed = True

# Sketch on XZ plane
sketch20 = doc.addObject("Sketcher::SketchObject", "Sketch019")
body.addObject(sketch20)
sketch20.AttachmentSupport = (doc.XZ_Plane, [""])
sketch20.MapMode = "FlatFace"
sketch20.AttachmentOffset = App.Placement(V(0, 0, -5), App.Rotation())
sketch20.addGeometry([
    Part.Circle(V(-295, -95, 0), V(0, 0, 1), 2.25),
    Part.Circle(V(-295, -5, 0), V(0, 0, 1), 2.25),
    Part.Circle(V(-5, -95, 0), V(0, 0, 1), 2.25),
    Part.Circle(V(-5, -5, 0), V(0, 0, 1), 2.25),
], False)
sketch20.addConstraint([
    Sketcher.Constraint("Equal", 0, 1),
    Sketcher.Constraint("Equal", 1, 2),
    Sketcher.Constraint("Equal", 2, 3),
    Sketcher.Constraint("Horizontal", 0, 3, 2, 3),
    Sketcher.Constraint("Horizontal", 1, 3, 3, 3),
    Sketcher.Constraint("Vertical", 0, 3, 1, 3),
    Sketcher.Constraint("Vertical", 2, 3, 3, 3),
    Sketcher.Constraint("Diameter", 0, 4.5),
    Sketcher.Constraint("DistanceX", 0, 3, -1, 1, 295.0),
    Sketcher.Constraint("DistanceY", 0, 3, -1, 1, 95.0),
    Sketcher.Constraint("DistanceY", 1, 3, -1, 1, 5.0),
    Sketcher.Constraint("DistanceX", 2, 3, -1, 1, 5.0),
])
sketch20.setExpression("Constraints[7]", "Params.sketch20_diameter")
pocket12 = doc.addObject("PartDesign::Pocket", "Pocket011")
body.addObject(pocket12)
pocket12.Profile = sketch20
pocket12.setExpression("Length", "Params.pocket12_length")
pocket12.Reversed = True

# Sketch on XZ plane
sketch21 = doc.addObject("Sketcher::SketchObject", "Sketch020")
body.addObject(sketch21)
sketch21.AttachmentSupport = (doc.XZ_Plane, [""])
sketch21.MapMode = "FlatFace"
sketch21.AttachmentOffset = App.Placement(V(0, 0, -16), App.Rotation())
sketch21.addGeometry([
    Part.Circle(V(-126.5, -95.5, 0), V(0, 0, 1), 1.45),
    Part.Circle(V(-126.5, -78.5, 0), V(0, 0, 1), 1.45),
    Part.Circle(V(-173.5, -78.5, 0), V(0, 0, 1), 1.45),
    Part.Circle(V(-173.5, -95.5, 0), V(0, 0, 1), 1.45),
], False)
sketch21.addConstraint([
    Sketcher.Constraint("Equal", 0, 1),
    Sketcher.Constraint("Equal", 1, 2),
    Sketcher.Constraint("Equal", 2, 3),
    Sketcher.Constraint("Horizontal", 1, 3, 2, 3),
    Sketcher.Constraint("Horizontal", 0, 3, 3, 3),
    Sketcher.Constraint("Vertical", 0, 3, 1, 3),
    Sketcher.Constraint("Vertical", 2, 3, 3, 3),
    Sketcher.Constraint("Diameter", 0, 2.9),
    Sketcher.Constraint("DistanceY", 0, 3, 1, 3, 17.0),
    Sketcher.Constraint("DistanceX", 2, 3, 1, 3, 47.0),
    Sketcher.Constraint("DistanceX", 0, 3, -1, 1, 126.5),
    Sketcher.Constraint("DistanceY", 0, 3, -1, 1, 95.5),
])
sketch21.setExpression("Constraints[7]", "Params.sketch21_diameter")
pocket13 = doc.addObject("PartDesign::Pocket", "Pocket012")
body.addObject(pocket13)
pocket13.Profile = sketch21
pocket13.setExpression("Length", "Params.pocket13_length")
pocket13.Reversed = True

# Sketch on XZ plane
sketch22 = doc.addObject("Sketcher::SketchObject", "Sketch021")
body.addObject(sketch22)
sketch22.AttachmentSupport = (doc.XZ_Plane, [""])
sketch22.MapMode = "FlatFace"
sketch22.AttachmentOffset = App.Placement(V(0, 0, -16), App.Rotation())
sketch22.addGeometry([
    Part.Circle(V(-173.5, -95.5, 0), V(0, 0, 1), 2.25),
    Part.Circle(V(-173.5, -78.5, 0), V(0, 0, 1), 2.25),
    Part.Circle(V(-126.5, -95.5, 0), V(0, 0, 1), 2.25),
    Part.Circle(V(-126.5, -78.5, 0), V(0, 0, 1), 2.25),
], False)
sketch22.addConstraint([
    Sketcher.Constraint("Equal", 0, 1),
    Sketcher.Constraint("Equal", 1, 2),
    Sketcher.Constraint("Equal", 2, 3),
    Sketcher.Constraint("Horizontal", 0, 3, 2, 3),
    Sketcher.Constraint("Horizontal", 1, 3, 3, 3),
    Sketcher.Constraint("Vertical", 0, 3, 1, 3),
    Sketcher.Constraint("Vertical", 2, 3, 3, 3),
    Sketcher.Constraint("Diameter", 0, 4.5),
    Sketcher.Constraint("DistanceY", 0, 3, 1, 3, 17.0),
    Sketcher.Constraint("DistanceX", 0, 3, 2, 3, 47.0),
    Sketcher.Constraint("DistanceX", 0, 3, -1, 1, 173.5),
    Sketcher.Constraint("DistanceY", 0, 3, -1, 1, 95.5),
])
sketch22.setExpression("Constraints[7]", "Params.sketch22_diameter")
pocket14 = doc.addObject("PartDesign::Pocket", "Pocket013")
body.addObject(pocket14)
pocket14.Profile = sketch22
pocket14.setExpression("Length", "Params.pocket14_length")
pocket14.Reversed = True

# Sketch on XZ plane
sketch23 = doc.addObject("Sketcher::SketchObject", "Sketch022")
body.addObject(sketch23)
sketch23.AttachmentSupport = (doc.XZ_Plane, [""])
sketch23.MapMode = "FlatFace"
sketch23.AttachmentOffset = App.Placement(V(0, 0, -16), App.Rotation())
sketch23.addGeometry([
    Part.Circle(V(-112.519173, -81, 0), V(0, 0, 1), 1.45),
    Part.Circle(V(-112.519173, -55, 0), V(0, 0, 1), 1.45),
    Part.Circle(V(-187.480827, -55, 0), V(0, 0, 1), 1.45),
    Part.Circle(V(-187.480827, -81, 0), V(0, 0, 1), 1.45),
], False)
sketch23.addConstraint([
    Sketcher.Constraint("Equal", 0, 1),
    Sketcher.Constraint("Equal", 1, 2),
    Sketcher.Constraint("Equal", 2, 3),
    Sketcher.Constraint("Horizontal", 1, 3, 2, 3),
    Sketcher.Constraint("Horizontal", 0, 3, 3, 3),
    Sketcher.Constraint("Vertical", 0, 3, 1, 3),
    Sketcher.Constraint("Vertical", 2, 3, 3, 3),
    Sketcher.Constraint("Diameter", 0, 2.9),
    Sketcher.Constraint("DistanceY", 0, 3, -1, 1, 81.0),
    Sketcher.Constraint("DistanceY", 1, 3, -1, 1, 55.0),
    Sketcher.Constraint("DistanceX", 0, 3, -1, 1, 112.519173),
    Sketcher.Constraint("DistanceX", 2, 3, -1, 1, 187.480827),
])
sketch23.setExpression("Constraints[7]", "Params.sketch23_diameter")
pocket15 = doc.addObject("PartDesign::Pocket", "Pocket014")
body.addObject(pocket15)
pocket15.Profile = sketch23
pocket15.setExpression("Length", "Params.pocket15_length")
pocket15.Reversed = True

# Sketch on XZ plane
sketch24 = doc.addObject("Sketcher::SketchObject", "Sketch023")
body.addObject(sketch24)
sketch24.AttachmentSupport = (doc.XZ_Plane, [""])
sketch24.MapMode = "FlatFace"
sketch24.AttachmentOffset = App.Placement(V(0, 0, -16), App.Rotation())
sketch24.addGeometry([
    Part.Circle(V(-187.480827, -81, 0), V(0, 0, 1), 2.25),
    Part.Circle(V(-187.480827, -55, 0), V(0, 0, 1), 2.25),
    Part.Circle(V(-112.519173, -81, 0), V(0, 0, 1), 2.25),
    Part.Circle(V(-112.519173, -55, 0), V(0, 0, 1), 2.25),
], False)
sketch24.addConstraint([
    Sketcher.Constraint("Equal", 0, 1),
    Sketcher.Constraint("Equal", 1, 2),
    Sketcher.Constraint("Equal", 2, 3),
    Sketcher.Constraint("Horizontal", 0, 3, 2, 3),
    Sketcher.Constraint("Horizontal", 1, 3, 3, 3),
    Sketcher.Constraint("Vertical", 0, 3, 1, 3),
    Sketcher.Constraint("Vertical", 2, 3, 3, 3),
    Sketcher.Constraint("Diameter", 0, 4.5),
    Sketcher.Constraint("DistanceY", 0, 3, -1, 1, 81.0),
    Sketcher.Constraint("DistanceY", 1, 3, -1, 1, 55.0),
    Sketcher.Constraint("DistanceX", 0, 3, -1, 1, 187.480827),
    Sketcher.Constraint("DistanceX", 2, 3, -1, 1, 112.519173),
])
sketch24.setExpression("Constraints[7]", "Params.sketch24_diameter")
pocket16 = doc.addObject("PartDesign::Pocket", "Pocket015")
body.addObject(pocket16)
pocket16.Profile = sketch24
pocket16.setExpression("Length", "Params.pocket16_length")
pocket16.Reversed = True

doc.recompute()
